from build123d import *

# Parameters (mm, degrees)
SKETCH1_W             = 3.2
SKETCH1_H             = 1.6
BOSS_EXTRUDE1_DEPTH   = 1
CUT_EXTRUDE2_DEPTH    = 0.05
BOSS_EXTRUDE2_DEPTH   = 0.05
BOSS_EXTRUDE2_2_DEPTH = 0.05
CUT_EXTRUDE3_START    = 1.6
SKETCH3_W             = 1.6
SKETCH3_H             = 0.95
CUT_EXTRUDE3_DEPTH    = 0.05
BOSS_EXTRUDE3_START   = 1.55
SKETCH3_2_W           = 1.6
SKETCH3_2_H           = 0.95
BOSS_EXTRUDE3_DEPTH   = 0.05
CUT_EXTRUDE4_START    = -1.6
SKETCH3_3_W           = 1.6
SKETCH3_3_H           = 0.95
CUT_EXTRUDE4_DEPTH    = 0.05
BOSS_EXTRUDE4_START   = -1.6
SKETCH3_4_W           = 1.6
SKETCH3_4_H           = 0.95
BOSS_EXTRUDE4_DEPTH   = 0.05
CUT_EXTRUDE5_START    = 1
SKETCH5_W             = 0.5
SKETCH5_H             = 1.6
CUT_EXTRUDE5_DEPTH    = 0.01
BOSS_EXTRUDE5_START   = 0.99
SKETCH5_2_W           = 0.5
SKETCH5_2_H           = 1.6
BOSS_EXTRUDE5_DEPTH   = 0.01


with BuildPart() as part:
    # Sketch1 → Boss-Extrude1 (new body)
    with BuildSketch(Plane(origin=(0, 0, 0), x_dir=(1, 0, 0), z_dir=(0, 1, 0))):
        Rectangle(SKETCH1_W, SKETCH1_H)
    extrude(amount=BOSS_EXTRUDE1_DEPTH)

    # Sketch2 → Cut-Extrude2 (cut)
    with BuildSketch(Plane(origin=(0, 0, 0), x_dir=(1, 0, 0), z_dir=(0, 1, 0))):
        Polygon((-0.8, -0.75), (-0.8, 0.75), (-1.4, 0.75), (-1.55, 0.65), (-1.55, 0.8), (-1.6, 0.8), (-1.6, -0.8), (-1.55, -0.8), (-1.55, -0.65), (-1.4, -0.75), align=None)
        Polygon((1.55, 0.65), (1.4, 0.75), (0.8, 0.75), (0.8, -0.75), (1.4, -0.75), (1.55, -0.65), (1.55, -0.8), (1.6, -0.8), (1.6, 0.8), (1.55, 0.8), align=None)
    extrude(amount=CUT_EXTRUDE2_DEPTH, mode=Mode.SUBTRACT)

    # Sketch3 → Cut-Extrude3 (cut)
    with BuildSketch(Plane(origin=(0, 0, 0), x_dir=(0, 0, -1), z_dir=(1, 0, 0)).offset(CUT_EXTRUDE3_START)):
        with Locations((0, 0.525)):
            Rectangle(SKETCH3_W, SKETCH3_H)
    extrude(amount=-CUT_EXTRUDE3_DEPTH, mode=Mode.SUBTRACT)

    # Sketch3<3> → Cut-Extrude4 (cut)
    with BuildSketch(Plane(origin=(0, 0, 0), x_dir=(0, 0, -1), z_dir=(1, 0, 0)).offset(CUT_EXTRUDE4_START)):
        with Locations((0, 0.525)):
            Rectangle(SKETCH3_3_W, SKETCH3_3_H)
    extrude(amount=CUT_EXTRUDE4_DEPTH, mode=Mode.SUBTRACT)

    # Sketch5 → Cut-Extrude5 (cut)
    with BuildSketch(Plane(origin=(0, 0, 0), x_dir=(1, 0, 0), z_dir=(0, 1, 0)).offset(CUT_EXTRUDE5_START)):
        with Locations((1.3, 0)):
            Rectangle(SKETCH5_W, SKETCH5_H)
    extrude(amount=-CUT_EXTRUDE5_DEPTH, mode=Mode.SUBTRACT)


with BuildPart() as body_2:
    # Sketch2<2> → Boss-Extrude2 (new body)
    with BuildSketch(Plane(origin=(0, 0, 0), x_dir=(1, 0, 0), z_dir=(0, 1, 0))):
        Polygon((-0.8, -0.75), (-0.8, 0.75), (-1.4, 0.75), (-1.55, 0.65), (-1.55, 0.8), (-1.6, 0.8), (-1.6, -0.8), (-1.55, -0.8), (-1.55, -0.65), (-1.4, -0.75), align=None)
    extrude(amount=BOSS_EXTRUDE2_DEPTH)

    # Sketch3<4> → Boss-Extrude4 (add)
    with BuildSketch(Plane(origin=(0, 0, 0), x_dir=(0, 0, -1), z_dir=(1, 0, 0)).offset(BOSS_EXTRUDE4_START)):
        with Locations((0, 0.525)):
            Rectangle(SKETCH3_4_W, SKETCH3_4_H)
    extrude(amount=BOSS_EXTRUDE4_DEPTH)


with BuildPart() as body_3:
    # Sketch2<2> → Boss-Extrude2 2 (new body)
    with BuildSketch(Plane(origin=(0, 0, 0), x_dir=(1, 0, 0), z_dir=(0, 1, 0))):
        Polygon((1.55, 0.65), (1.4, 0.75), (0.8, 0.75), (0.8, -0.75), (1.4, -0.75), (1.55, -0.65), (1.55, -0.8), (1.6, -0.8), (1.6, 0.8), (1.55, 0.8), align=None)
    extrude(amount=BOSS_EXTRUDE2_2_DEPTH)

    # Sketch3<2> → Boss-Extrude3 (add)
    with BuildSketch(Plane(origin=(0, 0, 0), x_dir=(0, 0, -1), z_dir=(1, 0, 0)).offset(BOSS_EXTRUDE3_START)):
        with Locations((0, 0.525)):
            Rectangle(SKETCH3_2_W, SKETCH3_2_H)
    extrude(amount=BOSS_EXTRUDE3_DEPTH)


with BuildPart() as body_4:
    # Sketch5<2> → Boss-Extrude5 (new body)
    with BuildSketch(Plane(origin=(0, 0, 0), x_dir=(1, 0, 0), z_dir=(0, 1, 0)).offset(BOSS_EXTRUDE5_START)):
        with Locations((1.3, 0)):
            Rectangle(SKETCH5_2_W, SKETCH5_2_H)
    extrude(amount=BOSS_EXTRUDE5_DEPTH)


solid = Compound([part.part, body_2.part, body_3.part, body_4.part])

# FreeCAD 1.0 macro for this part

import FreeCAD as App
import Part
import Sketcher


def add_polygon(sketch, points):
    """Adds a closed chain of lines whose ends are joined by coincident constraints."""
    first, n = sketch.GeometryCount, len(points)
    for a, b in zip(points, points[1:] + points[:1]):
        sketch.addGeometry(Part.LineSegment(App.Vector(*a, 0), App.Vector(*b, 0)), False)
    for i in range(n):
        sketch.addConstraint(Sketcher.Constraint("Coincident", first + i, 2, first + (i + 1) % n, 1))

doc = App.newDocument("Part")
body = doc.addObject("PartDesign::Body", "Body")

# Sketch on XZ plane
sketch1 = doc.addObject("Sketcher::SketchObject", "Sketch")
body.addObject(sketch1)
sketch1.AttachmentSupport = (doc.XZ_Plane, [""])
sketch1.MapMode = "FlatFace"
add_polygon(sketch1, [(-1.6, -0.8), (-1.6, 0.8), (1.6, 0.8), (1.6, -0.8)])  # lines 0-3
sketch1.addConstraint(Sketcher.Constraint("Vertical", 0))
sketch1.addConstraint(Sketcher.Constraint("Horizontal", 1))
sketch1.addConstraint(Sketcher.Constraint("Vertical", 2))
sketch1.addConstraint(Sketcher.Constraint("Horizontal", 3))
sketch1.addConstraint(Sketcher.Constraint("Symmetric", 0, 2, 2, 2, -1, 1))
sketch1.addConstraint(Sketcher.Constraint("DistanceX", 1, 1, 1, 2, 3.2))
sketch1.addConstraint(Sketcher.Constraint("DistanceY", 0, 1, 0, 2, 1.6))
pad1 = doc.addObject("PartDesign::Pad", "Pad")
body.addObject(pad1)
pad1.Profile = sketch1
pad1.Length = 1
pad1.Reversed = True

# Sketch on XZ plane
sketch2 = doc.addObject("Sketcher::SketchObject", "Sketch001")
body.addObject(sketch2)
sketch2.AttachmentSupport = (doc.XZ_Plane, [""])
sketch2.MapMode = "FlatFace"
add_polygon(sketch2, [(-0.8, 0.75), (-0.8, -0.75), (-1.4, -0.75), (-1.55, -0.65), (-1.55, -0.8), (-1.6, -0.8), (-1.6, 0.8), (-1.55, 0.8), (-1.55, 0.65), (-1.4, 0.75)])  # lines 0-9
add_polygon(sketch2, [(1.55, -0.65), (1.4, -0.75), (0.8, -0.75), (0.8, 0.75), (1.4, 0.75), (1.55, 0.65), (1.55, 0.8), (1.6, 0.8), (1.6, -0.8), (1.55, -0.8)])  # lines 10-19
sketch2.addConstraint(Sketcher.Constraint("Vertical", 0))
sketch2.addConstraint(Sketcher.Constraint("Horizontal", 1))
sketch2.addConstraint(Sketcher.Constraint("Vertical", 3))
sketch2.addConstraint(Sketcher.Constraint("Horizontal", 4))
sketch2.addConstraint(Sketcher.Constraint("Vertical", 5))
sketch2.addConstraint(Sketcher.Constraint("Horizontal", 6))
sketch2.addConstraint(Sketcher.Constraint("Vertical", 7))
sketch2.addConstraint(Sketcher.Constraint("Horizontal", 9))
sketch2.addConstraint(Sketcher.Constraint("Horizontal", 11))
sketch2.addConstraint(Sketcher.Constraint("Vertical", 12))
sketch2.addConstraint(Sketcher.Constraint("Horizontal", 13))
sketch2.addConstraint(Sketcher.Constraint("Vertical", 15))
sketch2.addConstraint(Sketcher.Constraint("Horizontal", 16))
sketch2.addConstraint(Sketcher.Constraint("Vertical", 17))
sketch2.addConstraint(Sketcher.Constraint("Horizontal", 18))
sketch2.addConstraint(Sketcher.Constraint("Vertical", 19))
sketch2.addConstraint(Sketcher.Constraint("Symmetric", 8, 2, 10, 2, -1, 1))
sketch2.addConstraint(Sketcher.Constraint("Symmetric", 0, 2, 12, 2, -1, 1))
sketch2.addConstraint(Sketcher.Constraint("Symmetric", 2, 2, 14, 2, -1, 1))
sketch2.addConstraint(Sketcher.Constraint("Symmetric", 4, 2, 16, 2, -1, 1))
sketch2.addConstraint(Sketcher.Constraint("Symmetric", 6, 2, 18, 2, -1, 1))
sketch2.addConstraint(Sketcher.Constraint("Symmetric", 1, 2, 10, 2, -2))
sketch2.addConstraint(Sketcher.Constraint("Symmetric", 7, 2, 14, 2, -2))
sketch2.addConstraint(Sketcher.Constraint("Parallel", 8, 10))
sketch2.addConstraint(Sketcher.Constraint("Parallel", 2, 14))
sketch2.addConstraint(Sketcher.Constraint("Horizontal", 6, 2, 15, 2))
sketch2.addConstraint(Sketcher.Constraint("DistanceX", 1, 2, 1, 1, 0.6))
sketch2.addConstraint(Sketcher.Constraint("DistanceY", 0, 2, 0, 1, 1.5))
sketch2.addConstraint(Sketcher.Constraint("DistanceY", 5, 1, 5, 2, 1.6))
sketch2.addConstraint(Sketcher.Constraint("DistanceX", 4, 2, 4, 1, 0.05))
sketch2.addConstraint(Sketcher.Constraint("DistanceY", 3, 2, 3, 1, 0.15))
sketch2.addConstraint(Sketcher.Constraint("DistanceX", 0, 2, -1, 1, 0.8))
sketch2.addConstraint(Sketcher.Constraint("DistanceX", 4, 2, -1, 1, 1.6))
pocket1 = doc.addObject("PartDesign::Pocket", "Pocket")
body.addObject(pocket1)
pocket1.Profile = sketch2
pocket1.Length = 0.05

# Sketch on YZ plane
sketch3 = doc.addObject("Sketcher::SketchObject", "Sketch002")
body.addObject(sketch3)
sketch3.AttachmentSupport = (doc.YZ_Plane, [""])
sketch3.MapMode = "FlatFace"
sketch3.AttachmentOffset = App.Placement(App.Vector(0, 0, 1.6), App.Rotation())
add_polygon(sketch3, [(1, 0.8), (0.05, 0.8), (0.05, -0.8), (1, -0.8)])  # lines 0-3
sketch3.addConstraint(Sketcher.Constraint("Horizontal", 0))
sketch3.addConstraint(Sketcher.Constraint("Vertical", 1))
sketch3.addConstraint(Sketcher.Constraint("Horizontal", 2))
sketch3.addConstraint(Sketcher.Constraint("Vertical", 3))
sketch3.addConstraint(Sketcher.Constraint("DistanceY", 1, 2, 1, 1, 1.6))
sketch3.addConstraint(Sketcher.Constraint("DistanceX", -1, 1, 2, 2, 1.0))
sketch3.addConstraint(Sketcher.Constraint("DistanceX", 0, 2, 0, 1, 0.95))
sketch3.addConstraint(Sketcher.Constraint("DistanceY", -1, 1, 0, 2, 0.8))
pocket2 = doc.addObject("PartDesign::Pocket", "Pocket001")
body.addObject(pocket2)
pocket2.Profile = sketch3
pocket2.Length = 0.05

# Sketch on YZ plane
sketch4 = doc.addObject("Sketcher::SketchObject", "Sketch003")
body.addObject(sketch4)
sketch4.AttachmentSupport = (doc.YZ_Plane, [""])
sketch4.MapMode = "FlatFace"
sketch4.AttachmentOffset = App.Placement(App.Vector(0, 0, -1.6), App.Rotation())
add_polygon(sketch4, [(1, 0.8), (0.05, 0.8), (0.05, -0.8), (1, -0.8)])  # lines 0-3
sketch4.addConstraint(Sketcher.Constraint("Horizontal", 0))
sketch4.addConstraint(Sketcher.Constraint("Vertical", 1))
sketch4.addConstraint(Sketcher.Constraint("Horizontal", 2))
sketch4.addConstraint(Sketcher.Constraint("Vertical", 3))
sketch4.addConstraint(Sketcher.Constraint("DistanceY", 1, 2, 1, 1, 1.6))
sketch4.addConstraint(Sketcher.Constraint("DistanceX", -1, 1, 2, 2, 1.0))
sketch4.addConstraint(Sketcher.Constraint("DistanceX", 0, 2, 0, 1, 0.95))
sketch4.addConstraint(Sketcher.Constraint("DistanceY", -1, 1, 0, 2, 0.8))
pocket3 = doc.addObject("PartDesign::Pocket", "Pocket002")
body.addObject(pocket3)
pocket3.Profile = sketch4
pocket3.Length = 0.05
pocket3.Reversed = True

# Sketch on XZ plane
sketch5 = doc.addObject("Sketcher::SketchObject", "Sketch004")
body.addObject(sketch5)
sketch5.AttachmentSupport = (doc.XZ_Plane, [""])
sketch5.MapMode = "FlatFace"
sketch5.AttachmentOffset = App.Placement(App.Vector(0, 0, -1), App.Rotation())
add_polygon(sketch5, [(1.05, -0.8), (1.05, 0.8), (1.55, 0.8), (1.55, -0.8)])  # lines 0-3
sketch5.addConstraint(Sketcher.Constraint("Vertical", 0))
sketch5.addConstraint(Sketcher.Constraint("Horizontal", 1))
sketch5.addConstraint(Sketcher.Constraint("Vertical", 2))
sketch5.addConstraint(Sketcher.Constraint("Horizontal", 3))
sketch5.addConstraint(Sketcher.Constraint("DistanceX", 1, 1, 1, 2, 0.5))
sketch5.addConstraint(Sketcher.Constraint("DistanceY", 0, 1, 0, 2, 1.6))
sketch5.addConstraint(Sketcher.Constraint("DistanceY", -1, 1, 0, 2, 0.8))
sketch5.addConstraint(Sketcher.Constraint("DistanceX", -1, 1, 0, 2, 1.05))
pocket4 = doc.addObject("PartDesign::Pocket", "Pocket003")
body.addObject(pocket4)
pocket4.Profile = sketch5
pocket4.Length = 0.01
pocket4.Reversed = True
body2 = doc.addObject("PartDesign::Body", "Body001")

# Sketch on XZ plane
sketch6 = doc.addObject("Sketcher::SketchObject", "Sketch005")
body2.addObject(sketch6)
sketch6.AttachmentSupport = (doc.getObject("XZ_Plane001"), [""])
sketch6.MapMode = "FlatFace"
add_polygon(sketch6, [(-0.8, 0.75), (-0.8, -0.75), (-1.4, -0.75), (-1.55, -0.65), (-1.55, -0.8), (-1.6, -0.8), (-1.6, 0.8), (-1.55, 0.8), (-1.55, 0.65), (-1.4, 0.75)])  # lines 0-9
sketch6.addConstraint(Sketcher.Constraint("Vertical", 0))
sketch6.addConstraint(Sketcher.Constraint("Horizontal", 1))
sketch6.addConstraint(Sketcher.Constraint("Vertical", 3))
sketch6.addConstraint(Sketcher.Constraint("Horizontal", 4))
sketch6.addConstraint(Sketcher.Constraint("Vertical", 5))
sketch6.addConstraint(Sketcher.Constraint("Horizontal", 6))
sketch6.addConstraint(Sketcher.Constraint("Vertical", 7))
sketch6.addConstraint(Sketcher.Constraint("Horizontal", 9))
sketch6.addConstraint(Sketcher.Constraint("Symmetric", 3, 2, 6, 2, -1))
sketch6.addConstraint(Sketcher.Constraint("Symmetric", 1, 2, 8, 2, -1))
sketch6.addConstraint(Sketcher.Constraint("Equal", 3, 7))
sketch6.addConstraint(Sketcher.Constraint("DistanceX", 1, 2, 1, 1, 0.6))
sketch6.addConstraint(Sketcher.Constraint("DistanceY", 0, 2, 0, 1, 1.5))
sketch6.addConstraint(Sketcher.Constraint("DistanceY", 5, 1, 5, 2, 1.6))
sketch6.addConstraint(Sketcher.Constraint("DistanceX", 4, 2, 4, 1, 0.05))
sketch6.addConstraint(Sketcher.Constraint("DistanceY", 3, 2, 3, 1, 0.15))
sketch6.addConstraint(Sketcher.Constraint("DistanceX", 0, 2, -1, 1, 0.8))
sketch6.addConstraint(Sketcher.Constraint("DistanceX", 4, 2, -1, 1, 1.6))
pad2 = doc.addObject("PartDesign::Pad", "Pad001")
body2.addObject(pad2)
pad2.Profile = sketch6
pad2.Length = 0.05
pad2.Reversed = True

# Sketch on YZ plane
sketch7 = doc.addObject("Sketcher::SketchObject", "Sketch006")
body2.addObject(sketch7)
sketch7.AttachmentSupport = (doc.getObject("YZ_Plane001"), [""])
sketch7.MapMode = "FlatFace"
sketch7.AttachmentOffset = App.Placement(App.Vector(0, 0, -1.6), App.Rotation())
add_polygon(sketch7, [(1, 0.8), (0.05, 0.8), (0.05, -0.8), (1, -0.8)])  # lines 0-3
sketch7.addConstraint(Sketcher.Constraint("Horizontal", 0))
sketch7.addConstraint(Sketcher.Constraint("Vertical", 1))
sketch7.addConstraint(Sketcher.Constraint("Horizontal", 2))
sketch7.addConstraint(Sketcher.Constraint("Vertical", 3))
sketch7.addConstraint(Sketcher.Constraint("DistanceY", 1, 2, 1, 1, 1.6))
sketch7.addConstraint(Sketcher.Constraint("DistanceX", -1, 1, 2, 2, 1.0))
sketch7.addConstraint(Sketcher.Constraint("DistanceX", 0, 2, 0, 1, 0.95))
sketch7.addConstraint(Sketcher.Constraint("DistanceY", -1, 1, 0, 2, 0.8))
pad3 = doc.addObject("PartDesign::Pad", "Pad002")
body2.addObject(pad3)
pad3.Profile = sketch7
pad3.Length = 0.05
body3 = doc.addObject("PartDesign::Body", "Body002")

# Sketch on XZ plane
sketch8 = doc.addObject("Sketcher::SketchObject", "Sketch007")
body3.addObject(sketch8)
sketch8.AttachmentSupport = (doc.getObject("XZ_Plane002"), [""])
sketch8.MapMode = "FlatFace"
add_polygon(sketch8, [(1.55, -0.65), (1.4, -0.75), (0.8, -0.75), (0.8, 0.75), (1.4, 0.75), (1.55, 0.65), (1.55, 0.8), (1.6, 0.8), (1.6, -0.8), (1.55, -0.8)])  # lines 0-9
sketch8.addConstraint(Sketcher.Constraint("Horizontal", 1))
sketch8.addConstraint(Sketcher.Constraint("Vertical", 2))
sketch8.addConstraint(Sketcher.Constraint("Horizontal", 3))
sketch8.addConstraint(Sketcher.Constraint("Vertical", 5))
sketch8.addConstraint(Sketcher.Constraint("Horizontal", 6))
sketch8.addConstraint(Sketcher.Constraint("Vertical", 7))
sketch8.addConstraint(Sketcher.Constraint("Horizontal", 8))
sketch8.addConstraint(Sketcher.Constraint("Vertical", 9))
sketch8.addConstraint(Sketcher.Constraint("Symmetric", 0, 2, 3, 2, -1))
sketch8.addConstraint(Sketcher.Constraint("Symmetric", 5, 2, 8, 2, -1))
sketch8.addConstraint(Sketcher.Constraint("Equal", 5, 9))
sketch8.addConstraint(Sketcher.Constraint("DistanceX", 1, 2, 1, 1, 0.6))
sketch8.addConstraint(Sketcher.Constraint("DistanceY", 2, 1, 2, 2, 1.5))
sketch8.addConstraint(Sketcher.Constraint("DistanceY", 7, 2, 7, 1, 1.6))
sketch8.addConstraint(Sketcher.Constraint("DistanceX", 6, 1, 6, 2, 0.05))
sketch8.addConstraint(Sketcher.Constraint("DistanceY", 5, 1, 5, 2, 0.15))
sketch8.addConstraint(Sketcher.Constraint("DistanceX", -1, 1, 0, 2, 1.4))
sketch8.addConstraint(Sketcher.Constraint("DistanceX", -1, 1, 6, 2, 1.6))
pad4 = doc.addObject("PartDesign::Pad", "Pad003")
body3.addObject(pad4)
pad4.Profile = sketch8
pad4.Length = 0.05
pad4.Reversed = True

# Sketch on YZ plane
sketch9 = doc.addObject("Sketcher::SketchObject", "Sketch008")
body3.addObject(sketch9)
sketch9.AttachmentSupport = (doc.getObject("YZ_Plane002"), [""])
sketch9.MapMode = "FlatFace"
sketch9.AttachmentOffset = App.Placement(App.Vector(0, 0, 1.55), App.Rotation())
add_polygon(sketch9, [(1, 0.8), (0.05, 0.8), (0.05, -0.8), (1, -0.8)])  # lines 0-3
sketch9.addConstraint(Sketcher.Constraint("Horizontal", 0))
sketch9.addConstraint(Sketcher.Constraint("Vertical", 1))
sketch9.addConstraint(Sketcher.Constraint("Horizontal", 2))
sketch9.addConstraint(Sketcher.Constraint("Vertical", 3))
sketch9.addConstraint(Sketcher.Constraint("DistanceY", 1, 2, 1, 1, 1.6))
sketch9.addConstraint(Sketcher.Constraint("DistanceX", -1, 1, 2, 2, 1.0))
sketch9.addConstraint(Sketcher.Constraint("DistanceX", 0, 2, 0, 1, 0.95))
sketch9.addConstraint(Sketcher.Constraint("DistanceY", -1, 1, 0, 2, 0.8))
pad5 = doc.addObject("PartDesign::Pad", "Pad004")
body3.addObject(pad5)
pad5.Profile = sketch9
pad5.Length = 0.05
body4 = doc.addObject("PartDesign::Body", "Body003")

# Sketch on XZ plane
sketch10 = doc.addObject("Sketcher::SketchObject", "Sketch009")
body4.addObject(sketch10)
sketch10.AttachmentSupport = (doc.getObject("XZ_Plane003"), [""])
sketch10.MapMode = "FlatFace"
sketch10.AttachmentOffset = App.Placement(App.Vector(0, 0, -0.99), App.Rotation())
add_polygon(sketch10, [(1.05, -0.8), (1.05, 0.8), (1.55, 0.8), (1.55, -0.8)])  # lines 0-3
sketch10.addConstraint(Sketcher.Constraint("Vertical", 0))
sketch10.addConstraint(Sketcher.Constraint("Horizontal", 1))
sketch10.addConstraint(Sketcher.Constraint("Vertical", 2))
sketch10.addConstraint(Sketcher.Constraint("Horizontal", 3))
sketch10.addConstraint(Sketcher.Constraint("DistanceX", 1, 1, 1, 2, 0.5))
sketch10.addConstraint(Sketcher.Constraint("DistanceY", 0, 1, 0, 2, 1.6))
sketch10.addConstraint(Sketcher.Constraint("DistanceY", -1, 1, 0, 2, 0.8))
sketch10.addConstraint(Sketcher.Constraint("DistanceX", -1, 1, 0, 2, 1.05))
pad6 = doc.addObject("PartDesign::Pad", "Pad005")
body4.addObject(pad6)
pad6.Profile = sketch10
pad6.Length = 0.01
pad6.Reversed = True

doc.recompute()
